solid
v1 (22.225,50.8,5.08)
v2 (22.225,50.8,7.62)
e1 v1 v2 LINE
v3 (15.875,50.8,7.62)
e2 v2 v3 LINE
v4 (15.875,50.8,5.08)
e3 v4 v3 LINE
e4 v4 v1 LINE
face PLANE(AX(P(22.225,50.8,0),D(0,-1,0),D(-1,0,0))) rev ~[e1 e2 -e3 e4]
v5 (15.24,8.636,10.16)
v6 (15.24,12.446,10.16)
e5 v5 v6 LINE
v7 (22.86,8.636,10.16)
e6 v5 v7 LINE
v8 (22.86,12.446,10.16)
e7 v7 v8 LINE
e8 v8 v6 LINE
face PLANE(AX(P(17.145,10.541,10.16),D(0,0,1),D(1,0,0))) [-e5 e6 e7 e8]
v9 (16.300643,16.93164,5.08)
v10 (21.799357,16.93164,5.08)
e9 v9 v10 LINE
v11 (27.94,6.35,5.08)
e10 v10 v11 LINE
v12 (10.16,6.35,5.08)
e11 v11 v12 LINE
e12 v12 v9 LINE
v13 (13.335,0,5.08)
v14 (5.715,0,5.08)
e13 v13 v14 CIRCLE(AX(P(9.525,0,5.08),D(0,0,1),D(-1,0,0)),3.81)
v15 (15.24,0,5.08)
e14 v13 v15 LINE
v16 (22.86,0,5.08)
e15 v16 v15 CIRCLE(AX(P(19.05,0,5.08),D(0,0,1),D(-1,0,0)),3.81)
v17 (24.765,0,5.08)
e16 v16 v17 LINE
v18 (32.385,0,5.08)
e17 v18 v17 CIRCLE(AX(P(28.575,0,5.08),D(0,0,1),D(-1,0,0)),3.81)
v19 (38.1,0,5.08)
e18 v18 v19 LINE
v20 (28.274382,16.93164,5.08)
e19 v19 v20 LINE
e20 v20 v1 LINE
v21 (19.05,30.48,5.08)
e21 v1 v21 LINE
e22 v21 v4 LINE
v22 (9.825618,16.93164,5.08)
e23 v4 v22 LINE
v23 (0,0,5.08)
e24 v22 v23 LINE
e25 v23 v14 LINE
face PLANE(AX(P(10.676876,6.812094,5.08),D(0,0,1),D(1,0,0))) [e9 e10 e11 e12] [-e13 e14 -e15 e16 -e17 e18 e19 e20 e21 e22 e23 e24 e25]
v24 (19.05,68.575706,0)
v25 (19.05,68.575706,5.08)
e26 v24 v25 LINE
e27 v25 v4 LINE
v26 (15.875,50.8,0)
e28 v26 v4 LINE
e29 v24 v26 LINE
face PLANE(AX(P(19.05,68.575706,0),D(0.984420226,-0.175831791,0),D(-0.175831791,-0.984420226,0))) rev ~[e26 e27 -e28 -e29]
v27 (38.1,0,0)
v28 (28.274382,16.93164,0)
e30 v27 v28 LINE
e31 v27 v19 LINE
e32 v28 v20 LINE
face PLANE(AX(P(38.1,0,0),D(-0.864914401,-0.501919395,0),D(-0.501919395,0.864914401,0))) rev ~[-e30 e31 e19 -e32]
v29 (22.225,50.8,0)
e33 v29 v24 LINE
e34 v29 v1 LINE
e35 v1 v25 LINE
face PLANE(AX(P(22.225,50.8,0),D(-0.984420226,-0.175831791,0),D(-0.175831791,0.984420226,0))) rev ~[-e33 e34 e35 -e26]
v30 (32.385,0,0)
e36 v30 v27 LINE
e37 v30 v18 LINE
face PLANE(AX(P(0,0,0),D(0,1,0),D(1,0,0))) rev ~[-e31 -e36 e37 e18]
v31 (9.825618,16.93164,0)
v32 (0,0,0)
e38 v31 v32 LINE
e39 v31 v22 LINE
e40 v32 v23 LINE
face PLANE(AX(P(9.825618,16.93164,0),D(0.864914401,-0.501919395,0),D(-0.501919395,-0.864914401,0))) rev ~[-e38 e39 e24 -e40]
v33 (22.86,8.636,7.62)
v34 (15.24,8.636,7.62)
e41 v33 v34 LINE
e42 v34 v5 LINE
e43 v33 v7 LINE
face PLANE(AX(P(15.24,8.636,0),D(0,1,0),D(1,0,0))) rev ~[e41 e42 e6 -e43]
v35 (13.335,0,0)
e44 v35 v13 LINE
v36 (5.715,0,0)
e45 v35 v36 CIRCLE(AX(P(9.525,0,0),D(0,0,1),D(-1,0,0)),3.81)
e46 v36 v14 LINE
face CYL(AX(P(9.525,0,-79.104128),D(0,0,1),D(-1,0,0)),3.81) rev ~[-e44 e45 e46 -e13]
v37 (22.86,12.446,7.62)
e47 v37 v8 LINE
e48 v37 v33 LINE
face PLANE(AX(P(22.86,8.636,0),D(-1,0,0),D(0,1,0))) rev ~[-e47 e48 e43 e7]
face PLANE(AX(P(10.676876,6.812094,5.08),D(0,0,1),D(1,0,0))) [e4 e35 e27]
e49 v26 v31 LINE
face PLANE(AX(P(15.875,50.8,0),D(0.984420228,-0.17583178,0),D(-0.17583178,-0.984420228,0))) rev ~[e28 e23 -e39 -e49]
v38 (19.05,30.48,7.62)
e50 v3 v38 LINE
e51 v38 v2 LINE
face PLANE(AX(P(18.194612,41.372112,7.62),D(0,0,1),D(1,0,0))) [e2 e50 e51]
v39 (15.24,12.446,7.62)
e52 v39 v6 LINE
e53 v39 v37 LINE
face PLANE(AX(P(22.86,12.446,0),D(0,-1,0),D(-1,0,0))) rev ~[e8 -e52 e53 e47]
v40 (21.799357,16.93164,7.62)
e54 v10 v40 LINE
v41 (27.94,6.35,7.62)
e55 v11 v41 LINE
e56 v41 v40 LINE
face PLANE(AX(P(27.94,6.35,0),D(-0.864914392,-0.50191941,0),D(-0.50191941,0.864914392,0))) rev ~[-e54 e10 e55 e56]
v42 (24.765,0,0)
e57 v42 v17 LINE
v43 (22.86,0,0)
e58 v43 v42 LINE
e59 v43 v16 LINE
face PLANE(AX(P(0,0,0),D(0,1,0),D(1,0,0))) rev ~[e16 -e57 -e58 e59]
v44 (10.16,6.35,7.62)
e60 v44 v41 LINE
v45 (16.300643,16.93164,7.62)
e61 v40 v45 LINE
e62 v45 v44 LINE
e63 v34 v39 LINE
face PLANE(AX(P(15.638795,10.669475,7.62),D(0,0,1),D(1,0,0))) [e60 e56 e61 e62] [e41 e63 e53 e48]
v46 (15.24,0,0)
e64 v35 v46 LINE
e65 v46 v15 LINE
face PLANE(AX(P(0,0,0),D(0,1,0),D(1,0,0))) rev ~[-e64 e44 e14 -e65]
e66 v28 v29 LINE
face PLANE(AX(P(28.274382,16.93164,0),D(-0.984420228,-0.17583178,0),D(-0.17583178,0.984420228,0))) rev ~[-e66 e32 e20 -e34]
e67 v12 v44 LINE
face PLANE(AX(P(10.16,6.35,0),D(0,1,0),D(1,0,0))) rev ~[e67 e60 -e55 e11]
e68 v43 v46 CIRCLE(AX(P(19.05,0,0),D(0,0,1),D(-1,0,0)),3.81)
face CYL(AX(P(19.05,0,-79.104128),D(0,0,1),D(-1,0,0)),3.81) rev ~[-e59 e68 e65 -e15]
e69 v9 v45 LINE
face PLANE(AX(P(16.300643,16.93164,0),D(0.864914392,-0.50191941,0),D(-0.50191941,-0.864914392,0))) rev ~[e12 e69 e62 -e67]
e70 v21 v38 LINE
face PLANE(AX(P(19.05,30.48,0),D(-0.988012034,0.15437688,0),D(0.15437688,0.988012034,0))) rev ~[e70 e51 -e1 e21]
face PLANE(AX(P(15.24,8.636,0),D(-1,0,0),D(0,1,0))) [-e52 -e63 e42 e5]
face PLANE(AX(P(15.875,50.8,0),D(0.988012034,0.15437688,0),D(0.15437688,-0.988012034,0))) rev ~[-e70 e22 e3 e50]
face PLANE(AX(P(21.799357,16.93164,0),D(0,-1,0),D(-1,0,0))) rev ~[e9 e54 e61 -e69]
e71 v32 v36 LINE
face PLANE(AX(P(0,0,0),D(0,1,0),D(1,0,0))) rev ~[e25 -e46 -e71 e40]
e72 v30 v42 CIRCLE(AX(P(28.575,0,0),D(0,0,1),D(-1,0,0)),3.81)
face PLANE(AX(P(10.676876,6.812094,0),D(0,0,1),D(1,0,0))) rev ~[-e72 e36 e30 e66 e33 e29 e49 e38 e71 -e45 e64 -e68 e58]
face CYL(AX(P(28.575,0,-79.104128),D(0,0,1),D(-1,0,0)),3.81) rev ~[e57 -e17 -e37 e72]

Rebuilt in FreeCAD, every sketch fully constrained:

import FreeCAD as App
import Part
import Sketcher
from FreeCAD import Vector
Q = App.Units.Quantity


def add_polygon(sketch, points):
    """Adds a closed chain of lines whose ends are joined by coincident constraints."""
    first, n = sketch.GeometryCount, len(points)
    for a, b in zip(points, points[1:] + points[:1]):
        sketch.addGeometry(Part.LineSegment(App.Vector(*a, 0), App.Vector(*b, 0)), False)
    for i in range(n):
        sketch.addConstraint(Sketcher.Constraint("Coincident", first + i, 2, first + (i + 1) % n, 1))

doc = App.newDocument("Part")
body = doc.addObject("PartDesign::Body", "Body")

# Sketch on XY plane
sketch1 = doc.addObject("Sketcher::SketchObject", "Sketch")
body.addObject(sketch1)
sketch1.AttachmentSupport = (doc.XY_Plane, [""])
sketch1.MapMode = "FlatFace"
add_polygon(sketch1, [(19.05, 68.575706), (15.875, 50.8), (9.825618, 16.93164), (0, 0), (38.1, 0), (28.274382, 16.93164), (22.225, 50.8)])  # lines 0-6
add_polygon(sketch1, [(21.799357, 16.93164), (27.94, 6.35), (10.16, 6.35), (16.300643, 16.93164)])  # lines 7-10
sketch1.addConstraint(Sketcher.Constraint("Horizontal", 3))
sketch1.addConstraint(Sketcher.Constraint("Horizontal", 8))
sketch1.addConstraint(Sketcher.Constraint("Horizontal", 10))
sketch1.addConstraint(Sketcher.Constraint("Coincident", 2, 2, -1, 1))
sketch1.addConstraint(Sketcher.Constraint("Parallel", 0, 1))
sketch1.addConstraint(Sketcher.Constraint("Parallel", 5, 6))
sketch1.addConstraint(Sketcher.Constraint("Parallel", 4, 7))
sketch1.addConstraint(Sketcher.Constraint("Parallel", 2, 9))
sketch1.addConstraint(Sketcher.Constraint("Horizontal", 1, 2, 4, 2))
sketch1.addConstraint(Sketcher.Constraint("Horizontal", 0, 2, 5, 2))
sketch1.addConstraint(Sketcher.Constraint("Horizontal", 4, 2, 9, 2))
sketch1.addConstraint(Sketcher.Constraint("Equal", 2, 4))
sketch1.addConstraint(Sketcher.Constraint("Equal", 1, 5))
sketch1.addConstraint(Sketcher.Constraint("DistanceX", 3, 1, 3, 2, Q("1.5 in")))
sketch1.addConstraint(Sketcher.Constraint("DistanceX", 8, 2, 8, 1, Q("0.7 in")))
sketch1.addConstraint(Sketcher.Constraint("DistanceY", -1, 1, 0, 2, Q("2 in")))
sketch1.addConstraint(Sketcher.Constraint("DistanceX", -1, 1, 7, 2, Q("1.1 in")))
sketch1.addConstraint(Sketcher.Constraint("DistanceY", -1, 1, 7, 2, Q("0.25 in")))
sketch1.addConstraint(Sketcher.Constraint("DistanceX", 0, 2, 5, 2, Q("0.25 in")))
sketch1.addConstraint(Sketcher.Constraint("DistanceY", -1, 1, 1, 2, Q("0.6666 in")))
sketch1.addConstraint(Sketcher.Constraint("Distance", 0, 18.05703))
pad1 = doc.addObject("PartDesign::Pad", "Pad")
body.addObject(pad1)
pad1.Profile = sketch1
pad1.Length = Q("0.2 in")

# Sketch on XY plane
sketch2 = doc.addObject("Sketcher::SketchObject", "Sketch001")
body.addObject(sketch2)
sketch2.AttachmentSupport = (doc.XY_Plane, [""])
sketch2.MapMode = "FlatFace"
add_polygon(sketch2, [(10.16, 6.35), (27.94, 6.35), (21.799357, 16.93164), (16.300643, 16.93164)])  # lines 0-3
add_polygon(sketch2, [(15.24, 8.636), (15.24, 12.446), (22.86, 12.446), (22.86, 8.636)])  # lines 4-7
sketch2.addConstraint(Sketcher.Constraint("Horizontal", 0))
sketch2.addConstraint(Sketcher.Constraint("Horizontal", 2))
sketch2.addConstraint(Sketcher.Constraint("Vertical", 4))
sketch2.addConstraint(Sketcher.Constraint("Horizontal", 5))
sketch2.addConstraint(Sketcher.Constraint("Vertical", 6))
sketch2.addConstraint(Sketcher.Constraint("Horizontal", 7))
sketch2.addConstraint(Sketcher.Constraint("Equal", 1, 3))
sketch2.addConstraint(Sketcher.Constraint("DistanceX", 0, 1, 0, 2, Q("0.7 in")))
sketch2.addConstraint(Sketcher.Constraint("DistanceX", 5, 1, 5, 2, Q("0.3 in")))
sketch2.addConstraint(Sketcher.Constraint("DistanceY", 4, 1, 4, 2, Q("0.15 in")))
sketch2.addConstraint(Sketcher.Constraint("DistanceX", -1, 1, 0, 2, Q("1.1 in")))
sketch2.addConstraint(Sketcher.Constraint("DistanceX", -1, 1, 4, 2, Q("0.6 in")))
sketch2.addConstraint(Sketcher.Constraint("DistanceY", -1, 1, 0, 2, Q("0.25 in")))
sketch2.addConstraint(Sketcher.Constraint("DistanceY", -1, 1, 4, 2, Q("0.49 in")))
sketch2.addConstraint(Sketcher.Constraint("DistanceY", -1, 1, 1, 2, Q("0.6666 in")))
sketch2.addConstraint(Sketcher.Constraint("Distance", 1, 12.234321))
pad2 = doc.addObject("PartDesign::Pad", "Pad001")
body.addObject(pad2)
pad2.Profile = sketch2
pad2.Length = Q("0.3 in")

# Sketch on XY plane
sketch3 = doc.addObject("Sketcher::SketchObject", "Sketch002")
body.addObject(sketch3)
sketch3.AttachmentSupport = (doc.XY_Plane, [""])
sketch3.MapMode = "FlatFace"
add_polygon(sketch3, [(15.24, 12.446), (15.24, 8.636), (22.86, 8.636), (22.86, 12.446)])  # lines 0-3
sketch3.addConstraint(Sketcher.Constraint("Vertical", 0))
sketch3.addConstraint(Sketcher.Constraint("Horizontal", 1))
sketch3.addConstraint(Sketcher.Constraint("Vertical", 2))
sketch3.addConstraint(Sketcher.Constraint("Horizontal", 3))
sketch3.addConstraint(Sketcher.Constraint("DistanceX", 1, 1, 1, 2, Q("0.3 in")))
sketch3.addConstraint(Sketcher.Constraint("DistanceY", 0, 2, 0, 1, Q("0.15 in")))
sketch3.addConstraint(Sketcher.Constraint("DistanceX", -1, 1, 0, 2, Q("0.6 in")))
sketch3.addConstraint(Sketcher.Constraint("DistanceY", -1, 1, 0, 2, Q("0.34 in")))
pad3 = doc.addObject("PartDesign::Pad", "Pad002")
body.addObject(pad3)
pad3.Profile = sketch3
pad3.Length = Q("0.4 in")

# Sketch on XY plane
sketch4 = doc.addObject("Sketcher::SketchObject", "Sketch003")
body.addObject(sketch4)
sketch4.AttachmentSupport = (doc.XY_Plane, [""])
sketch4.MapMode = "FlatFace"
add_polygon(sketch4, [(15.875, 50.8), (19.05, 30.48), (22.225, 50.8)])  # lines 0-2
sketch4.addConstraint(Sketcher.Constraint("Horizontal", 2))
sketch4.addConstraint(Sketcher.Constraint("Equal", 0, 1))
sketch4.addConstraint(Sketcher.Constraint("DistanceY", -1, 1, 1, 2, Q("2 in")))
sketch4.addConstraint(Sketcher.Constraint("DistanceX", 2, 2, 2, 1, Q("0.25 in")))
sketch4.addConstraint(Sketcher.Constraint("DistanceY", -1, 1, 0, 2, Q("1.2 in")))
sketch4.addConstraint(Sketcher.Constraint("DistanceX", -1, 1, 0, 2, Q("0.75 in")))
pad4 = doc.addObject("PartDesign::Pad", "Pad003")
body.addObject(pad4)
pad4.Profile = sketch4
pad4.Length = Q("0.3 in")

# Sketch on XY plane
sketch5 = doc.addObject("Sketcher::SketchObject", "Sketch004")
body.addObject(sketch5)
sketch5.AttachmentSupport = (doc.XY_Plane, [""])
sketch5.MapMode = "FlatFace"
sketch5.addGeometry(Part.Circle(Vector(19.05, 0, 0), Vector(0, 0, 1), 3.81), False)
sketch5.addConstraint(Sketcher.Constraint("PointOnObject", 0, 3, -1))
sketch5.addConstraint(Sketcher.Constraint("Diameter", 0, Q("0.3 in")))
sketch5.addConstraint(Sketcher.Constraint("DistanceX", -1, 1, 0, 3, Q("0.75 in")))
doc.recompute()
hole = doc.addObject("PartDesign::Hole", "Hole")
body.addObject(hole)
hole.Profile = sketch5
hole.ThreadType = "None"
hole.Diameter = Q("0.3 in")
hole.DepthType = "ThroughAll"
hole.Reversed = True

# Sketch on XY plane
sketch6 = doc.addObject("Sketcher::SketchObject", "Sketch005")
body.addObject(sketch6)
sketch6.AttachmentSupport = (doc.XY_Plane, [""])
sketch6.MapMode = "FlatFace"
sketch6.addGeometry(Part.Circle(Vector(9.525, 0, 0), Vector(0, 0, 1), 3.81), False)
sketch6.addGeometry(Part.Circle(Vector(28.575, 0, 0), Vector(0, 0, 1), 3.81), False)
sketch6.addConstraint(Sketcher.Constraint("Equal", 0, 1))
sketch6.addConstraint(Sketcher.Constraint("PointOnObject", 0, 3, -1))
sketch6.addConstraint(Sketcher.Constraint("PointOnObject", 1, 3, -1))
sketch6.addConstraint(Sketcher.Constraint("Diameter", 0, Q("0.3 in")))
sketch6.addConstraint(Sketcher.Constraint("DistanceX", 0, 3, 1, 3, Q("0.75 in")))
sketch6.addConstraint(Sketcher.Constraint("DistanceX", -1, 1, 0, 3, Q("0.375 in")))
doc.recompute()
hole2 = doc.addObject("PartDesign::Hole", "Hole001")
body.addObject(hole2)
hole2.Profile = sketch6
hole2.ThreadType = "None"
hole2.Diameter = Q("0.3 in")
hole2.DepthType = "ThroughAll"
hole2.Reversed = True

doc.recompute()
